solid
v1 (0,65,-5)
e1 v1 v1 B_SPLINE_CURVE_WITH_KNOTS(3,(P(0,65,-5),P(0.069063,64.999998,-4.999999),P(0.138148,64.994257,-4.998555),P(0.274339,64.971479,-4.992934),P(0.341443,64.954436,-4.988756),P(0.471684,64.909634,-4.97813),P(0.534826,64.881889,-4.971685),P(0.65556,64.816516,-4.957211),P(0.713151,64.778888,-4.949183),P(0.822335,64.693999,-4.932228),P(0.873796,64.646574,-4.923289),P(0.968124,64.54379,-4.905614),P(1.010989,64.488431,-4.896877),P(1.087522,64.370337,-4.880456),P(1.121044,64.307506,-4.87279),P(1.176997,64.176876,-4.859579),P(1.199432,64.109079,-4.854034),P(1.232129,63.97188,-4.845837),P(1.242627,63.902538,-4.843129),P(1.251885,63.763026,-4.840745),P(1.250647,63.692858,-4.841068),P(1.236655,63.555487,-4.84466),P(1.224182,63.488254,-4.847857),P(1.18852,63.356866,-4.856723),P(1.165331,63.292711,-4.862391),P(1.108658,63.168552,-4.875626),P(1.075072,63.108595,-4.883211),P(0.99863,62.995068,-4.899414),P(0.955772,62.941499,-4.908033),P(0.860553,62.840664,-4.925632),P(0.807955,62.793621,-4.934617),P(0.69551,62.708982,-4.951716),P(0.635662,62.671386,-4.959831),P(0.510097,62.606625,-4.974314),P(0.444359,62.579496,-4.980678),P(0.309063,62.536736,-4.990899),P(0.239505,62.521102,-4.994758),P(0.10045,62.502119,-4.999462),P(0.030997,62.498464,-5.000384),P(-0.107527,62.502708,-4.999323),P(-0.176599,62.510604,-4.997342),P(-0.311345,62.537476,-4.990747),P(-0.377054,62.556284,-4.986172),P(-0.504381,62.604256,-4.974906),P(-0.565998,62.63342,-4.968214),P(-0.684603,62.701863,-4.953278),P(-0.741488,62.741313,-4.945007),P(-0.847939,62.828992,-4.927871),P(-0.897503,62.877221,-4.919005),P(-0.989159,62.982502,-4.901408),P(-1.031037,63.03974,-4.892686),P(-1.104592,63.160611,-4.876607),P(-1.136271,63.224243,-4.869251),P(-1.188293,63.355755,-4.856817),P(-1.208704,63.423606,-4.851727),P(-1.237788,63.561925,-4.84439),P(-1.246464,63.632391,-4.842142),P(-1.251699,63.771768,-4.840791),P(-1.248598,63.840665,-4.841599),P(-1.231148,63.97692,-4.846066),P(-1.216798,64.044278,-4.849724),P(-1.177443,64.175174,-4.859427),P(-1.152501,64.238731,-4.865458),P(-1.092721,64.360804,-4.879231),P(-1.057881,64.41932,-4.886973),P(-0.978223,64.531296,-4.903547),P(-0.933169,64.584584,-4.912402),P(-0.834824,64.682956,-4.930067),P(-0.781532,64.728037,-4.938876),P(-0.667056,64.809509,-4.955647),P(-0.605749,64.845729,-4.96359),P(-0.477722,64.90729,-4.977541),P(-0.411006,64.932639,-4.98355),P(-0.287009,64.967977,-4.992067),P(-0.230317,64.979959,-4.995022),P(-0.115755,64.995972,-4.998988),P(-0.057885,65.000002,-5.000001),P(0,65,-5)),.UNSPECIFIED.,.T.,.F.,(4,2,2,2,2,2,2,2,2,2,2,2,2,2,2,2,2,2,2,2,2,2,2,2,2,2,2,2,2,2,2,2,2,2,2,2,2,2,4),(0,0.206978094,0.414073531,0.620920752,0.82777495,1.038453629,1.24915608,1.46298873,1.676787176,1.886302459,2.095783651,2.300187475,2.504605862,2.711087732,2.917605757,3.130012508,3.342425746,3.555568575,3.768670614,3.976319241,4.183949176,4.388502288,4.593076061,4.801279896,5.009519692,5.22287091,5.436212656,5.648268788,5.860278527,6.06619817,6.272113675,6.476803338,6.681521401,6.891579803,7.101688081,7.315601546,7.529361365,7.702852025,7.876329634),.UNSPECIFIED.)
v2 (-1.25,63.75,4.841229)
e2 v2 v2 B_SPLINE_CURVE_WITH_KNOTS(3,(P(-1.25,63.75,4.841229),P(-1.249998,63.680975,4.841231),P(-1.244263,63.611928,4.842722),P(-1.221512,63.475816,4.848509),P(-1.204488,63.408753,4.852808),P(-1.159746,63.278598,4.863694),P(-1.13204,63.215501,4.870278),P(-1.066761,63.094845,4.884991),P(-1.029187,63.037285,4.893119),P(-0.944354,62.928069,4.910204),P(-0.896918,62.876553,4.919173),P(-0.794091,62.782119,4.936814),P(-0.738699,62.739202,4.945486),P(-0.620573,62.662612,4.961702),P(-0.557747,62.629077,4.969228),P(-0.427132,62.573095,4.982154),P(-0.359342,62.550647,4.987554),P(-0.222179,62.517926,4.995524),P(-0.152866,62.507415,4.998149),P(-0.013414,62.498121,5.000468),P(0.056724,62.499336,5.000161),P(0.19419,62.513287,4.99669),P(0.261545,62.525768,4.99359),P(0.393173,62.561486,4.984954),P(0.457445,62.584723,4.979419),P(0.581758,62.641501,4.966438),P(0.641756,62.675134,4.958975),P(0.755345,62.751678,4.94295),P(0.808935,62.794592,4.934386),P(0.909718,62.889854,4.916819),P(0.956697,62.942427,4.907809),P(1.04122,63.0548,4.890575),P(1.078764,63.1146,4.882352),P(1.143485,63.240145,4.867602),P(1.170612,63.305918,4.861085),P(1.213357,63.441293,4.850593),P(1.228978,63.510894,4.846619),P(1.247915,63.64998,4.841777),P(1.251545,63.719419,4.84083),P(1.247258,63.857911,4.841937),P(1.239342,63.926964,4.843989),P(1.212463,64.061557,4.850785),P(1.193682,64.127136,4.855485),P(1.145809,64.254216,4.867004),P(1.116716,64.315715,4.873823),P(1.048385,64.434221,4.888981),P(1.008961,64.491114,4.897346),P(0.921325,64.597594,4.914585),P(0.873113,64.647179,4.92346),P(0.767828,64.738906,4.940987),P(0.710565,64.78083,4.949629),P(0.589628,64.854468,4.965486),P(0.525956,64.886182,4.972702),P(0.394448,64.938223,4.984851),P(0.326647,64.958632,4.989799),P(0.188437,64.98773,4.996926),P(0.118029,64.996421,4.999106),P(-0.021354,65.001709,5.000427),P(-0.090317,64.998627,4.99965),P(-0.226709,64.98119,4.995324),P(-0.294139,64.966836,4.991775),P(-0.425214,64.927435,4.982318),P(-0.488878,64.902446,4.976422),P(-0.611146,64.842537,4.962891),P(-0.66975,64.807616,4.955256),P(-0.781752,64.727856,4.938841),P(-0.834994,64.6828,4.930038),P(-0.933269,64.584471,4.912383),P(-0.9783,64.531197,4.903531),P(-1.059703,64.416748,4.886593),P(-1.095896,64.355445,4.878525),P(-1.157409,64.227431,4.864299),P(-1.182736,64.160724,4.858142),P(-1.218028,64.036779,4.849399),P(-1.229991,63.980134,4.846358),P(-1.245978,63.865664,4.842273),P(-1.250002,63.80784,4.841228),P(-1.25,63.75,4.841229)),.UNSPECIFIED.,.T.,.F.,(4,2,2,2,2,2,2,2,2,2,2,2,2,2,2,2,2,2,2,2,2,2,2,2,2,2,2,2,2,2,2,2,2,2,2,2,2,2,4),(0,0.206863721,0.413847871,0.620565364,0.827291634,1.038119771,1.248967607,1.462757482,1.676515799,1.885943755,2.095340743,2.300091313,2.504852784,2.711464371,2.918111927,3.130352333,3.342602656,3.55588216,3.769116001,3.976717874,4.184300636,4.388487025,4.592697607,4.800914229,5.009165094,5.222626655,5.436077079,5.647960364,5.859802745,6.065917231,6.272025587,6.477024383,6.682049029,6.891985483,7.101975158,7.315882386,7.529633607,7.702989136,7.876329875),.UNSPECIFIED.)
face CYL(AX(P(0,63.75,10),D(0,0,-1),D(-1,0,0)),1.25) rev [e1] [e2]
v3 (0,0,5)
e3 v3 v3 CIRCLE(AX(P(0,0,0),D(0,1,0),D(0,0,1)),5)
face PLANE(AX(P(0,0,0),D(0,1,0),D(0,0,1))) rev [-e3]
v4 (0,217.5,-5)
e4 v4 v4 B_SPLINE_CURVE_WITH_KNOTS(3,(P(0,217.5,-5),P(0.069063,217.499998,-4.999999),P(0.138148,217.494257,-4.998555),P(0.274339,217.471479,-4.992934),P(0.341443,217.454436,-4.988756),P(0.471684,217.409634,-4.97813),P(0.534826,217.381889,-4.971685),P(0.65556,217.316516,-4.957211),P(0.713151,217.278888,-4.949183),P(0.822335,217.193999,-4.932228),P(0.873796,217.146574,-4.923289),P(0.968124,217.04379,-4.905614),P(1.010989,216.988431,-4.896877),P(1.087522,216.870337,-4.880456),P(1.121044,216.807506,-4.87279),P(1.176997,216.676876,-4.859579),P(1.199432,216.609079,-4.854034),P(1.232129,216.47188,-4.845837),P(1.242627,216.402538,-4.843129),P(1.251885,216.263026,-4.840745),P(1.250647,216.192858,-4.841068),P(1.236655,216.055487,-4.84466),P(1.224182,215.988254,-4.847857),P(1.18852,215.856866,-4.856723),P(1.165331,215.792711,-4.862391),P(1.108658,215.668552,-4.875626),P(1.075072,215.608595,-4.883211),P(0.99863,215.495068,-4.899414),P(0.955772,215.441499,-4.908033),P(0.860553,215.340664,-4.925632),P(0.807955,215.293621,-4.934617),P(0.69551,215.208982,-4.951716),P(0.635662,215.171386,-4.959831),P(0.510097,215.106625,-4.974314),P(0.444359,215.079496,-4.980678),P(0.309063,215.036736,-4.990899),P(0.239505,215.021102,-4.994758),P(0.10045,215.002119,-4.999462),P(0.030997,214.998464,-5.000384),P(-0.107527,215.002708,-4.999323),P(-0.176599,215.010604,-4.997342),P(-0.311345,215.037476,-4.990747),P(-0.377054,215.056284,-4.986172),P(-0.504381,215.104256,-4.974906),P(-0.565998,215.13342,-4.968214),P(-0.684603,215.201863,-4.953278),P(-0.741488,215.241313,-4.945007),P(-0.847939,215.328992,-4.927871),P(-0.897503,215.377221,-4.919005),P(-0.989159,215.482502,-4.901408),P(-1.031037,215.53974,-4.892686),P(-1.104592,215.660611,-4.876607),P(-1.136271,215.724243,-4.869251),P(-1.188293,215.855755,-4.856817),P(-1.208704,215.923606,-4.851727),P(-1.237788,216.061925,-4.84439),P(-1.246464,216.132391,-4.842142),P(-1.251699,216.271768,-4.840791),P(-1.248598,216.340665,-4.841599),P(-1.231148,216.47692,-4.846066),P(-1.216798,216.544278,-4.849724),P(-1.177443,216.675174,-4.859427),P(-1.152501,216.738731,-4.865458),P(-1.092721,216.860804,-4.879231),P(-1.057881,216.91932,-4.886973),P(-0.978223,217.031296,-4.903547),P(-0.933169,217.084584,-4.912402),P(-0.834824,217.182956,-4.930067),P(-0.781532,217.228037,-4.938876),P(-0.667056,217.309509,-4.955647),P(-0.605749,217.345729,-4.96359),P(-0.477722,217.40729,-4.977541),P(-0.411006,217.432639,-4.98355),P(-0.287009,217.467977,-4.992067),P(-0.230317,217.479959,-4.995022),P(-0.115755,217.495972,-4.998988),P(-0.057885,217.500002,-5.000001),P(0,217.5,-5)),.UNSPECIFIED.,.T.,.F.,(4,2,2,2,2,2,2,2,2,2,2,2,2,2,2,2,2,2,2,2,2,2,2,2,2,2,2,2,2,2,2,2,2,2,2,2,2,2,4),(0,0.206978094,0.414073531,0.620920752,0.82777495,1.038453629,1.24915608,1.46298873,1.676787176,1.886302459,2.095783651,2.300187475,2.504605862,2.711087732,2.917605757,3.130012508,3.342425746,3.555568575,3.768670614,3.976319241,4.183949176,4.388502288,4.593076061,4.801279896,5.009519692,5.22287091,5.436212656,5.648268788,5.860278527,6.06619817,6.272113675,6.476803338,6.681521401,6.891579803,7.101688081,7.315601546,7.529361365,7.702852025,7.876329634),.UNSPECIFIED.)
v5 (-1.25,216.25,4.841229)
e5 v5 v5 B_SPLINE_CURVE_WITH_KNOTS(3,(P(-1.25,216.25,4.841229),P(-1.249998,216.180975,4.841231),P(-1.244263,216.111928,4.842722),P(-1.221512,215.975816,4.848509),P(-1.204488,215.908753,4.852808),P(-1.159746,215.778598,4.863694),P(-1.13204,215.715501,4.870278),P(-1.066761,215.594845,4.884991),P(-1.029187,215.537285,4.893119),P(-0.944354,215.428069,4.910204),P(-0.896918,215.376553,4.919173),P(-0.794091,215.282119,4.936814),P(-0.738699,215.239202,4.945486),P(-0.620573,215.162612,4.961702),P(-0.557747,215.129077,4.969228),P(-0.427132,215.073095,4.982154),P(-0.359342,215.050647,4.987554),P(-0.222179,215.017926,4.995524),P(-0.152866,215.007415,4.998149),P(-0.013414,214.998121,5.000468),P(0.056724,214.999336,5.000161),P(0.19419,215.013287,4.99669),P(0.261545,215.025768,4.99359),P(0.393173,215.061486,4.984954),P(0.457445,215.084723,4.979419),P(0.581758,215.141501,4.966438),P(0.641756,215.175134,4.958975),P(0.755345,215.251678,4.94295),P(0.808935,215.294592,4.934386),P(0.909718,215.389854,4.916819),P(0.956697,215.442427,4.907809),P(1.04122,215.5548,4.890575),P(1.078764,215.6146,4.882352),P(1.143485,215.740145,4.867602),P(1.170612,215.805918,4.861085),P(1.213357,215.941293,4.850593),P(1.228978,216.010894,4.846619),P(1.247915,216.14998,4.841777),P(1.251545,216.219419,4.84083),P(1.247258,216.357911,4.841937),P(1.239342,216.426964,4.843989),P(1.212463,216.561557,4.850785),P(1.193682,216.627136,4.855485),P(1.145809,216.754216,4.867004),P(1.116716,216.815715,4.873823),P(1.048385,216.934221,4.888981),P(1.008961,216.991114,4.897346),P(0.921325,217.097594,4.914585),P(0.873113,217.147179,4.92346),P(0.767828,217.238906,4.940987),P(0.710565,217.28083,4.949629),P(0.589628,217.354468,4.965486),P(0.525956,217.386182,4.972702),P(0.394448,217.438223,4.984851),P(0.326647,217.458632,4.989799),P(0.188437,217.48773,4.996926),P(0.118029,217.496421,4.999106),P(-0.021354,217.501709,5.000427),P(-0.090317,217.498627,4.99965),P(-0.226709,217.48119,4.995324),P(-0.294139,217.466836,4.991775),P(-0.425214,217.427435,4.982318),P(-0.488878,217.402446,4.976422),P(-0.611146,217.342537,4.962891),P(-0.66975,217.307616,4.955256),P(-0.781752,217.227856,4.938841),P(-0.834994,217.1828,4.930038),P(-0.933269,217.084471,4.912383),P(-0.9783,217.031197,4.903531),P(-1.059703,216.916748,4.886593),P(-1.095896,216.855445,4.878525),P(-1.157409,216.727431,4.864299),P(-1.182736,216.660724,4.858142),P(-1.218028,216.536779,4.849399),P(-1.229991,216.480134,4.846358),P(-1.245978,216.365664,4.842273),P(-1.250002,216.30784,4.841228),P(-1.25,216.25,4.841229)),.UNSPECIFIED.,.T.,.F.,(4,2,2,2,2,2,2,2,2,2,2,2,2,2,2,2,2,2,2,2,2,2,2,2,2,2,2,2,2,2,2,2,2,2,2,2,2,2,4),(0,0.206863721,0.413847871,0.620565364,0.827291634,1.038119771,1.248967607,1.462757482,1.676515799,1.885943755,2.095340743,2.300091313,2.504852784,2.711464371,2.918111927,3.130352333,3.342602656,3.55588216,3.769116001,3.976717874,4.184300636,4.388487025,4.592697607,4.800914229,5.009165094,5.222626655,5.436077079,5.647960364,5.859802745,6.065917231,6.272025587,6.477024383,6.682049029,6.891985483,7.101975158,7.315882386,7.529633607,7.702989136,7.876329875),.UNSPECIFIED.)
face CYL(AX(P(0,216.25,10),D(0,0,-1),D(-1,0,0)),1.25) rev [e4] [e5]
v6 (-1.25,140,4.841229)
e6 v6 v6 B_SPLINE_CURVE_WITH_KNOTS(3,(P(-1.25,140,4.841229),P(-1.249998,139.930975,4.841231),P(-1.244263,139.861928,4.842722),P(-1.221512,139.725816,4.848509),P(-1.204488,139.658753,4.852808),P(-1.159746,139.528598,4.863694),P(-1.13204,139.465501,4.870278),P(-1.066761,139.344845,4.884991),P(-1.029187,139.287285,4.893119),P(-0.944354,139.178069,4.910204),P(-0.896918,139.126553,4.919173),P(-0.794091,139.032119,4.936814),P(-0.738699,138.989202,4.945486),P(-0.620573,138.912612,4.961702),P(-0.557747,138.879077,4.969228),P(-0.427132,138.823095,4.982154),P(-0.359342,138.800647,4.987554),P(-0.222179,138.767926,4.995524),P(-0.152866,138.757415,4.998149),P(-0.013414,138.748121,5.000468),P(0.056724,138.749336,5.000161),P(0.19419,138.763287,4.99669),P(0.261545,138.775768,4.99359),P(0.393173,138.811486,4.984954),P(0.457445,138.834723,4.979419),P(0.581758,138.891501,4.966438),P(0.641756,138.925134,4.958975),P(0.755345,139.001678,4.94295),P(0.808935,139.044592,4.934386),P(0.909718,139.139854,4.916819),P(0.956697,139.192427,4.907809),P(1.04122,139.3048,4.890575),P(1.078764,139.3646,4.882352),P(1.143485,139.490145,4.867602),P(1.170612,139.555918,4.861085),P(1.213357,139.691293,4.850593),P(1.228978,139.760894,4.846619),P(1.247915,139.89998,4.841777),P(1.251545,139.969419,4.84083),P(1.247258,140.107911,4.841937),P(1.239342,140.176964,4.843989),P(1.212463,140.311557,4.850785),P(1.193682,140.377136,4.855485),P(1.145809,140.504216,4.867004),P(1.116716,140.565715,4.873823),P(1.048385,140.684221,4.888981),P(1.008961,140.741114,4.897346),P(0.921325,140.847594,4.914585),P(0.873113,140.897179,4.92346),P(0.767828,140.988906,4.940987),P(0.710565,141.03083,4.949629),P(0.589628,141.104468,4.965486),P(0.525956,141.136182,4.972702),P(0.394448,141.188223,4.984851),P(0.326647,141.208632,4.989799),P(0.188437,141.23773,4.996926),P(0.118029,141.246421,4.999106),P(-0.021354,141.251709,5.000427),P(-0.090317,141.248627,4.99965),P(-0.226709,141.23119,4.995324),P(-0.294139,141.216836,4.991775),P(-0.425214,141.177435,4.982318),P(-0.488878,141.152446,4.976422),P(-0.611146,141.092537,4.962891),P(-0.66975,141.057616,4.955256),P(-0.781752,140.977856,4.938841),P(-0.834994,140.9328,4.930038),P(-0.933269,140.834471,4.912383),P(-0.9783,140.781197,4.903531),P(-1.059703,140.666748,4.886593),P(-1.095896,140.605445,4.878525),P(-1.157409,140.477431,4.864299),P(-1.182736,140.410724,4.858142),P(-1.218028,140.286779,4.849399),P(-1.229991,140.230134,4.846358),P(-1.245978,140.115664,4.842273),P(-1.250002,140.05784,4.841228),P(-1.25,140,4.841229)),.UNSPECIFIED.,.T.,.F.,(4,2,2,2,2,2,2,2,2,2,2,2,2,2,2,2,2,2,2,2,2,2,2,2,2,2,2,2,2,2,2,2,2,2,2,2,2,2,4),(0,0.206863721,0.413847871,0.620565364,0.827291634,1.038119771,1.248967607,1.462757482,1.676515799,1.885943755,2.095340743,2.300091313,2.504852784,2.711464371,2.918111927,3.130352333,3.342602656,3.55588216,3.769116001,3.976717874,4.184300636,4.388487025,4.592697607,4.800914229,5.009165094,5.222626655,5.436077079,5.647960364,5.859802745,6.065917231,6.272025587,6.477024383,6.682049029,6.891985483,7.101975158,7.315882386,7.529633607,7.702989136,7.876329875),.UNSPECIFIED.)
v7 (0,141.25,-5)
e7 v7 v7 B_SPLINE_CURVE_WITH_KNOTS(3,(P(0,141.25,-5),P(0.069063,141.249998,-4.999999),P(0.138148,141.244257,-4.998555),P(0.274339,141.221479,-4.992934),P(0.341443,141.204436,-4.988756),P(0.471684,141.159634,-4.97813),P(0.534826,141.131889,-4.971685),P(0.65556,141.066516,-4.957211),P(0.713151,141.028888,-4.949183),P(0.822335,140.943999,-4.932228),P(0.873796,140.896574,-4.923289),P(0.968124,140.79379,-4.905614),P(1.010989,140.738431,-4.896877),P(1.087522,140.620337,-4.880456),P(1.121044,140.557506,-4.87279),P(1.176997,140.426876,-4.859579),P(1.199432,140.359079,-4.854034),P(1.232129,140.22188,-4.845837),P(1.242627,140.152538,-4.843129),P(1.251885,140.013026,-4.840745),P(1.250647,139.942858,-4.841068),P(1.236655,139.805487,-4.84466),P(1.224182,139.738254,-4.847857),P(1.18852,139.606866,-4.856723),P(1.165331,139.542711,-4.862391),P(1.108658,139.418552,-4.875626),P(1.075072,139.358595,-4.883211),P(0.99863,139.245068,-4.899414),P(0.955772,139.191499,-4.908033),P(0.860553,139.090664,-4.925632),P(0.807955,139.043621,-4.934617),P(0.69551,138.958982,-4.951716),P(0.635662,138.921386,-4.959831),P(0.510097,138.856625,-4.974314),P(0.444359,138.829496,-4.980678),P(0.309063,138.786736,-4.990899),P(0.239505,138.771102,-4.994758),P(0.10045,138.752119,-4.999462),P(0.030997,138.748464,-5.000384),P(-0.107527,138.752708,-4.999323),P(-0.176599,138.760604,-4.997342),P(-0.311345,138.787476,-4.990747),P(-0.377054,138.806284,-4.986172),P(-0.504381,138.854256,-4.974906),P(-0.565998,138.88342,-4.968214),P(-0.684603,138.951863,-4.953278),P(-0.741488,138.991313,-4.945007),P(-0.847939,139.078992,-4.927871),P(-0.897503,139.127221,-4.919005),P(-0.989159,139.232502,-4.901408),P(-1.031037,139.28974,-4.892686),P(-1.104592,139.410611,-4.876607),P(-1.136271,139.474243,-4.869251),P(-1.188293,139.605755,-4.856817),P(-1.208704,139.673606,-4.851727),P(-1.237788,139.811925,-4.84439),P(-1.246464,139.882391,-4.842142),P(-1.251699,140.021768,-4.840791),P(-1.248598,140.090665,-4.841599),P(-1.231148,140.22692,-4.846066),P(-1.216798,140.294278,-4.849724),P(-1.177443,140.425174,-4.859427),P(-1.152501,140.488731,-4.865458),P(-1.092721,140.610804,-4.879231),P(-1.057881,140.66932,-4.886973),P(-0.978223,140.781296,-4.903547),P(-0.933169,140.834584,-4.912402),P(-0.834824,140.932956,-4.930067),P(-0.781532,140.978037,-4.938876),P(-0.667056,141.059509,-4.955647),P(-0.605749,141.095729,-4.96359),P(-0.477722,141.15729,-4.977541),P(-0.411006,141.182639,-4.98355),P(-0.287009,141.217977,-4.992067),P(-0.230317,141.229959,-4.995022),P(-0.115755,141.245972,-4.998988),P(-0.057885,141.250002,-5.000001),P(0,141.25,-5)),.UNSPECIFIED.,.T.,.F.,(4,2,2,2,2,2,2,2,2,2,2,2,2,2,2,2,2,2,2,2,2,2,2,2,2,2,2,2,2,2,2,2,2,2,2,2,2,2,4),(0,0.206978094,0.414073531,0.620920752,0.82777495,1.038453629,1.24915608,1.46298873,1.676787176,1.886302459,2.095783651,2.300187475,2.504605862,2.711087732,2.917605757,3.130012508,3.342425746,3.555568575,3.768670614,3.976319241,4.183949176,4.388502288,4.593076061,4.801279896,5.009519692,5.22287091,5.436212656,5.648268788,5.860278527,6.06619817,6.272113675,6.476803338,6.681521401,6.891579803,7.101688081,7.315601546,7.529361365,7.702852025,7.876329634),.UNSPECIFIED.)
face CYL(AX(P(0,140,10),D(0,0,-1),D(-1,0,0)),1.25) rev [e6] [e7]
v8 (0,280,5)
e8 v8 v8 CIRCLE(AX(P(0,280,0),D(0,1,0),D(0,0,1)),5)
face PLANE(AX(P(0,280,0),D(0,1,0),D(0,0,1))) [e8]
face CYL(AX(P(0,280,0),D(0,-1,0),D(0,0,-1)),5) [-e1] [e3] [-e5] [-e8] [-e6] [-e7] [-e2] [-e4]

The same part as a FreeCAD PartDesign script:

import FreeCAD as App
import Part
import Sketcher
from FreeCAD import Vector

doc = App.newDocument("Part")
body = doc.addObject("PartDesign::Body", "Body")

# Sketch on XZ plane
sketch1 = body.newObject("Sketcher::SketchObject", "Sketch")
sketch1.AttachmentSupport = (doc.getObject("XZ_Plane"), [""])
sketch1.MapMode = "FlatFace"
sketch1.addGeometry(Part.Circle(Vector(0, 0, 0), Vector(0, 0, 1), 5), False)
sketch1.addConstraint(Sketcher.Constraint("Coincident", 0, 3, -1, 1))
sketch1.addConstraint(Sketcher.Constraint("Diameter", 0, 10.0))
pad1 = body.newObject("PartDesign::Pad", "Pad")
pad1.Profile = sketch1
pad1.Length = 280
pad1.Reversed = True

# Sketch on XY plane
sketch2 = body.newObject("Sketcher::SketchObject", "Sketch001")
sketch2.AttachmentSupport = (doc.getObject("XY_Plane"), [""])
sketch2.MapMode = "FlatFace"
sketch2.addGeometry(Part.Circle(Vector(0, 216.2, 0), Vector(0, 0, 1), 1.2), False)
sketch2.addGeometry(Part.Circle(Vector(0, 140, 0), Vector(0, 0, 1), 1.2), False)
sketch2.addGeometry(Part.Circle(Vector(0, 63.8, 0), Vector(0, 0, 1), 1.2), False)
sketch2.addConstraint(Sketcher.Constraint("Equal", 0, 1))
sketch2.addConstraint(Sketcher.Constraint("Equal", 1, 2))
sketch2.addConstraint(Sketcher.Constraint("PointOnObject", 0, 3, -2))
sketch2.addConstraint(Sketcher.Constraint("PointOnObject", 1, 3, -2))
sketch2.addConstraint(Sketcher.Constraint("PointOnObject", 2, 3, -2))
sketch2.addConstraint(Sketcher.Constraint("Diameter", 0, 2.5))
sketch2.addConstraint(Sketcher.Constraint("DistanceY", -1, 1, 1, 3, 140.0))
sketch2.addConstraint(Sketcher.Constraint("DistanceY", 2, 3, 0, 3, 152.5))
sketch2.addConstraint(Sketcher.Constraint("DistanceY", -1, 1, 0, 3, 216.25))
pocket1 = body.newObject("PartDesign::Pocket", "Pocket")
pocket1.Profile = sketch2
pocket1.Type = "ThroughAll"
pocket1.Midplane = True

doc.recompute()
